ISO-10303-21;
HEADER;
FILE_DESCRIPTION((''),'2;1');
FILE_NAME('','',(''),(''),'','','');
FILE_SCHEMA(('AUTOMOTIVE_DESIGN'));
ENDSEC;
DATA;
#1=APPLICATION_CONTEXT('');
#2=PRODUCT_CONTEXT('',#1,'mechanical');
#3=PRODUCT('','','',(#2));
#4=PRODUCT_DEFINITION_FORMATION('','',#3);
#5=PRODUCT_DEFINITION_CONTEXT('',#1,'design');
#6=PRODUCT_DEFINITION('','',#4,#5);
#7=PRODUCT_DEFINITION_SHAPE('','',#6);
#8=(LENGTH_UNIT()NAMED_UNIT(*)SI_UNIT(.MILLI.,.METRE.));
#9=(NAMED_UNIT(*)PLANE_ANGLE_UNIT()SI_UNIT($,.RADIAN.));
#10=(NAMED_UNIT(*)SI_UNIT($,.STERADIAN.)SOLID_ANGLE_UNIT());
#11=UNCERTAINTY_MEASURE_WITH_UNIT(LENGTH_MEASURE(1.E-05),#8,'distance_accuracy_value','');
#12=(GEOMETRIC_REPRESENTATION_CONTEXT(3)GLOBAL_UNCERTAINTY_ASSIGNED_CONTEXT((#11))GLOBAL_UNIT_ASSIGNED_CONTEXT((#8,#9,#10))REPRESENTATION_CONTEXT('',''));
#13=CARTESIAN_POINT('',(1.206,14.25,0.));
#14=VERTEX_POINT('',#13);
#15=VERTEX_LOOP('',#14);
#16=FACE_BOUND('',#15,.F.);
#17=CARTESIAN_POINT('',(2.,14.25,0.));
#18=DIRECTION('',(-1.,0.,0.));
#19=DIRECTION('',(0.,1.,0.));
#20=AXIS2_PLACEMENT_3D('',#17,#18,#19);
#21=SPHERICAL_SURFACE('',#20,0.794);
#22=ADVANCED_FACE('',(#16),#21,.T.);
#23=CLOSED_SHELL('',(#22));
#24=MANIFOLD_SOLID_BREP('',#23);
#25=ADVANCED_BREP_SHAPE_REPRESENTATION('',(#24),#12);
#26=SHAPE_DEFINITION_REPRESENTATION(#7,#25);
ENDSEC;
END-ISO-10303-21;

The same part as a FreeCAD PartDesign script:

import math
import FreeCAD as App
import Part
import Sketcher
from FreeCAD import Vector

doc = App.newDocument("Part")
params = doc.addObject("Spreadsheet::Sheet", "Params")
for row, (alias, value) in enumerate([
    ("revolution_angle", "360 deg"),
], start=1):
    params.set(f"A{row}", alias)
    params.set(f"B{row}", "=" + value)
    params.setAlias(f"B{row}", alias)

body = doc.addObject("PartDesign::Body", "Body")

# Sketch on XY plane
sketch1 = doc.addObject("Sketcher::SketchObject", "Sketch")
body.addObject(sketch1)
sketch1.AttachmentSupport = (doc.XY_Plane, [""])
sketch1.MapMode = "FlatFace"
sketch1.addGeometry(Part.LineSegment(Vector(1.2, 14.2, 0), Vector(2.8, 14.2, 0)), False)
sketch1.addGeometry(Part.ArcOfCircle(Part.Circle(Vector(2, 14.2, 0), Vector(0, 0, 1), 0.8), math.radians(0), math.radians(180)), False)
sketch1.addGeometry(Part.LineSegment(Vector(1.2, 14.2, 0), Vector(2.8, 14.2, 0)), True)  # axis
sketch1.addConstraint(Sketcher.Constraint("Coincident", 0, 1, 1, 2))
sketch1.addConstraint(Sketcher.Constraint("Coincident", 1, 1, 0, 2))
sketch1.addConstraint(Sketcher.Constraint("Horizontal", 0))
sketch1.addConstraint(Sketcher.Constraint("Horizontal", 2))
sketch1.addConstraint(Sketcher.Constraint("Coincident", 2, 1, 0, 1))
sketch1.addConstraint(Sketcher.Constraint("Horizontal", 1, 3, 0, 1))
sketch1.addConstraint(Sketcher.Constraint("Equal", 0, 2))
sketch1.addConstraint(Sketcher.Constraint("DistanceX", -1, 1, 1, 3, 2.0))
sketch1.addConstraint(Sketcher.Constraint("Radius", 1, 0.794))
sketch1.addConstraint(Sketcher.Constraint("DistanceY", -1, 1, 1, 3, 14.25))
revolution = doc.addObject("PartDesign::Revolution", "Revolution")
body.addObject(revolution)
revolution.Profile = sketch1
revolution.ReferenceAxis = (sketch1, ["Axis0"])
revolution.setExpression("Angle", "Params.revolution_angle")

doc.recompute()
